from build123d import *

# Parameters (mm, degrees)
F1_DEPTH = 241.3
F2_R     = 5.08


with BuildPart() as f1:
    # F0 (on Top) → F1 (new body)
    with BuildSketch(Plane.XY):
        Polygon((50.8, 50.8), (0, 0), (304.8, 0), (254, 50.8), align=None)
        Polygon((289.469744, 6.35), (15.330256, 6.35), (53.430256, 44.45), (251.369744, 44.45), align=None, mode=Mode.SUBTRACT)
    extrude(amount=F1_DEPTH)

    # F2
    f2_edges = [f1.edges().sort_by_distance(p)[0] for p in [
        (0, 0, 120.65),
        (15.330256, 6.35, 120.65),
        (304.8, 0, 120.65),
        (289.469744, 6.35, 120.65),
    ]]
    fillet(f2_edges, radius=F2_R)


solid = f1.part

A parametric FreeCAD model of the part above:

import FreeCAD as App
import Part
import Sketcher

V = App.Vector
Q = App.Units.Quantity


def edges_at(feature, points):
    """Names of the edges that pass closest to the given points."""
    edges = feature.Shape.Edges
    near = lambda p: min(range(len(edges)), key=lambda i: edges[i].distToShape(Part.Vertex(*p))[0])
    return sorted({f"Edge{near(p) + 1}" for p in points})

doc = App.newDocument("Part")
body = doc.addObject("PartDesign::Body", "Body")

sketch1 = body.newObject("Sketcher::SketchObject", "Sketch")
sketch1.AttachmentSupport = (doc.getObject("XY_Plane"), [""])
sketch1.MapMode = "FlatFace"
sketch1.addGeometry(Part.LineSegment(V(51, 51, 0), V(0, 0, 0)), False)
sketch1.addGeometry(Part.LineSegment(V(0, 0, 0), V(305, 0, 0)), False)
sketch1.addGeometry(Part.LineSegment(V(305, 0, 0), V(254, 51, 0)), False)
sketch1.addGeometry(Part.LineSegment(V(254, 51, 0), V(51, 51, 0)), False)
sketch1.addGeometry(Part.LineSegment(V(251, 44, 0), V(289, 6, 0)), False)
sketch1.addGeometry(Part.LineSegment(V(289, 6, 0), V(15, 6, 0)), False)
sketch1.addGeometry(Part.LineSegment(V(15, 6, 0), V(53, 44, 0)), False)
sketch1.addGeometry(Part.LineSegment(V(53, 44, 0), V(251, 44, 0)), False)
sketch1.addConstraint(Sketcher.Constraint("Coincident", 0, 2, 1, 1))
sketch1.addConstraint(Sketcher.Constraint("Coincident", 1, 2, 2, 1))
sketch1.addConstraint(Sketcher.Constraint("Coincident", 2, 2, 3, 1))
sketch1.addConstraint(Sketcher.Constraint("Coincident", 3, 2, 0, 1))
sketch1.addConstraint(Sketcher.Constraint("Coincident", 4, 2, 5, 1))
sketch1.addConstraint(Sketcher.Constraint("Coincident", 5, 2, 6, 1))
sketch1.addConstraint(Sketcher.Constraint("Coincident", 6, 2, 7, 1))
sketch1.addConstraint(Sketcher.Constraint("Coincident", 7, 2, 4, 1))
sketch1.addConstraint(Sketcher.Constraint("Horizontal", 1))
sketch1.addConstraint(Sketcher.Constraint("Horizontal", 3))
sketch1.addConstraint(Sketcher.Constraint("Horizontal", 5))
sketch1.addConstraint(Sketcher.Constraint("Horizontal", 7))
sketch1.addConstraint(Sketcher.Constraint("Coincident", 0, 2, -1, 1))
sketch1.addConstraint(Sketcher.Constraint("Perpendicular", 0, 2))
sketch1.addConstraint(Sketcher.Constraint("Parallel", 2, 4))
sketch1.addConstraint(Sketcher.Constraint("Perpendicular", 4, 6))
sketch1.addConstraint(Sketcher.Constraint("Equal", 0, 2))
sketch1.addConstraint(Sketcher.Constraint("DistanceX", 1, 1, 1, 2, Q("12 in")))
sketch1.addConstraint(Sketcher.Constraint("DistanceX", 3, 2, 3, 1, Q("8 in")))
sketch1.addConstraint(Sketcher.Constraint("DistanceX", 5, 2, 6, 2, Q("1.5 in")))
sketch1.addConstraint(Sketcher.Constraint("DistanceY", -1, 1, 4, 2, Q("0.25 in")))
sketch1.addConstraint(Sketcher.Constraint("DistanceX", 5, 2, 5, 1, 274.139488))
sketch1.addConstraint(Sketcher.Constraint("DistanceX", -1, 1, 4, 2, 289.469744))
pad1 = body.newObject("PartDesign::Pad", "Pad")
pad1.Profile = sketch1
pad1.Length = Q("9.5 in")
doc.recompute()

fillet = body.newObject("PartDesign::Fillet", "Fillet")
fillet.Base = (pad1, edges_at(pad1, [
    (0, 0, 120.65),
    (15.33, 6.35, 120.65),
    (304.8, 0, 120.65),
    (289.47, 6.35, 120.65),
]))
fillet.Radius = Q("0.2 in")

doc.recompute()
